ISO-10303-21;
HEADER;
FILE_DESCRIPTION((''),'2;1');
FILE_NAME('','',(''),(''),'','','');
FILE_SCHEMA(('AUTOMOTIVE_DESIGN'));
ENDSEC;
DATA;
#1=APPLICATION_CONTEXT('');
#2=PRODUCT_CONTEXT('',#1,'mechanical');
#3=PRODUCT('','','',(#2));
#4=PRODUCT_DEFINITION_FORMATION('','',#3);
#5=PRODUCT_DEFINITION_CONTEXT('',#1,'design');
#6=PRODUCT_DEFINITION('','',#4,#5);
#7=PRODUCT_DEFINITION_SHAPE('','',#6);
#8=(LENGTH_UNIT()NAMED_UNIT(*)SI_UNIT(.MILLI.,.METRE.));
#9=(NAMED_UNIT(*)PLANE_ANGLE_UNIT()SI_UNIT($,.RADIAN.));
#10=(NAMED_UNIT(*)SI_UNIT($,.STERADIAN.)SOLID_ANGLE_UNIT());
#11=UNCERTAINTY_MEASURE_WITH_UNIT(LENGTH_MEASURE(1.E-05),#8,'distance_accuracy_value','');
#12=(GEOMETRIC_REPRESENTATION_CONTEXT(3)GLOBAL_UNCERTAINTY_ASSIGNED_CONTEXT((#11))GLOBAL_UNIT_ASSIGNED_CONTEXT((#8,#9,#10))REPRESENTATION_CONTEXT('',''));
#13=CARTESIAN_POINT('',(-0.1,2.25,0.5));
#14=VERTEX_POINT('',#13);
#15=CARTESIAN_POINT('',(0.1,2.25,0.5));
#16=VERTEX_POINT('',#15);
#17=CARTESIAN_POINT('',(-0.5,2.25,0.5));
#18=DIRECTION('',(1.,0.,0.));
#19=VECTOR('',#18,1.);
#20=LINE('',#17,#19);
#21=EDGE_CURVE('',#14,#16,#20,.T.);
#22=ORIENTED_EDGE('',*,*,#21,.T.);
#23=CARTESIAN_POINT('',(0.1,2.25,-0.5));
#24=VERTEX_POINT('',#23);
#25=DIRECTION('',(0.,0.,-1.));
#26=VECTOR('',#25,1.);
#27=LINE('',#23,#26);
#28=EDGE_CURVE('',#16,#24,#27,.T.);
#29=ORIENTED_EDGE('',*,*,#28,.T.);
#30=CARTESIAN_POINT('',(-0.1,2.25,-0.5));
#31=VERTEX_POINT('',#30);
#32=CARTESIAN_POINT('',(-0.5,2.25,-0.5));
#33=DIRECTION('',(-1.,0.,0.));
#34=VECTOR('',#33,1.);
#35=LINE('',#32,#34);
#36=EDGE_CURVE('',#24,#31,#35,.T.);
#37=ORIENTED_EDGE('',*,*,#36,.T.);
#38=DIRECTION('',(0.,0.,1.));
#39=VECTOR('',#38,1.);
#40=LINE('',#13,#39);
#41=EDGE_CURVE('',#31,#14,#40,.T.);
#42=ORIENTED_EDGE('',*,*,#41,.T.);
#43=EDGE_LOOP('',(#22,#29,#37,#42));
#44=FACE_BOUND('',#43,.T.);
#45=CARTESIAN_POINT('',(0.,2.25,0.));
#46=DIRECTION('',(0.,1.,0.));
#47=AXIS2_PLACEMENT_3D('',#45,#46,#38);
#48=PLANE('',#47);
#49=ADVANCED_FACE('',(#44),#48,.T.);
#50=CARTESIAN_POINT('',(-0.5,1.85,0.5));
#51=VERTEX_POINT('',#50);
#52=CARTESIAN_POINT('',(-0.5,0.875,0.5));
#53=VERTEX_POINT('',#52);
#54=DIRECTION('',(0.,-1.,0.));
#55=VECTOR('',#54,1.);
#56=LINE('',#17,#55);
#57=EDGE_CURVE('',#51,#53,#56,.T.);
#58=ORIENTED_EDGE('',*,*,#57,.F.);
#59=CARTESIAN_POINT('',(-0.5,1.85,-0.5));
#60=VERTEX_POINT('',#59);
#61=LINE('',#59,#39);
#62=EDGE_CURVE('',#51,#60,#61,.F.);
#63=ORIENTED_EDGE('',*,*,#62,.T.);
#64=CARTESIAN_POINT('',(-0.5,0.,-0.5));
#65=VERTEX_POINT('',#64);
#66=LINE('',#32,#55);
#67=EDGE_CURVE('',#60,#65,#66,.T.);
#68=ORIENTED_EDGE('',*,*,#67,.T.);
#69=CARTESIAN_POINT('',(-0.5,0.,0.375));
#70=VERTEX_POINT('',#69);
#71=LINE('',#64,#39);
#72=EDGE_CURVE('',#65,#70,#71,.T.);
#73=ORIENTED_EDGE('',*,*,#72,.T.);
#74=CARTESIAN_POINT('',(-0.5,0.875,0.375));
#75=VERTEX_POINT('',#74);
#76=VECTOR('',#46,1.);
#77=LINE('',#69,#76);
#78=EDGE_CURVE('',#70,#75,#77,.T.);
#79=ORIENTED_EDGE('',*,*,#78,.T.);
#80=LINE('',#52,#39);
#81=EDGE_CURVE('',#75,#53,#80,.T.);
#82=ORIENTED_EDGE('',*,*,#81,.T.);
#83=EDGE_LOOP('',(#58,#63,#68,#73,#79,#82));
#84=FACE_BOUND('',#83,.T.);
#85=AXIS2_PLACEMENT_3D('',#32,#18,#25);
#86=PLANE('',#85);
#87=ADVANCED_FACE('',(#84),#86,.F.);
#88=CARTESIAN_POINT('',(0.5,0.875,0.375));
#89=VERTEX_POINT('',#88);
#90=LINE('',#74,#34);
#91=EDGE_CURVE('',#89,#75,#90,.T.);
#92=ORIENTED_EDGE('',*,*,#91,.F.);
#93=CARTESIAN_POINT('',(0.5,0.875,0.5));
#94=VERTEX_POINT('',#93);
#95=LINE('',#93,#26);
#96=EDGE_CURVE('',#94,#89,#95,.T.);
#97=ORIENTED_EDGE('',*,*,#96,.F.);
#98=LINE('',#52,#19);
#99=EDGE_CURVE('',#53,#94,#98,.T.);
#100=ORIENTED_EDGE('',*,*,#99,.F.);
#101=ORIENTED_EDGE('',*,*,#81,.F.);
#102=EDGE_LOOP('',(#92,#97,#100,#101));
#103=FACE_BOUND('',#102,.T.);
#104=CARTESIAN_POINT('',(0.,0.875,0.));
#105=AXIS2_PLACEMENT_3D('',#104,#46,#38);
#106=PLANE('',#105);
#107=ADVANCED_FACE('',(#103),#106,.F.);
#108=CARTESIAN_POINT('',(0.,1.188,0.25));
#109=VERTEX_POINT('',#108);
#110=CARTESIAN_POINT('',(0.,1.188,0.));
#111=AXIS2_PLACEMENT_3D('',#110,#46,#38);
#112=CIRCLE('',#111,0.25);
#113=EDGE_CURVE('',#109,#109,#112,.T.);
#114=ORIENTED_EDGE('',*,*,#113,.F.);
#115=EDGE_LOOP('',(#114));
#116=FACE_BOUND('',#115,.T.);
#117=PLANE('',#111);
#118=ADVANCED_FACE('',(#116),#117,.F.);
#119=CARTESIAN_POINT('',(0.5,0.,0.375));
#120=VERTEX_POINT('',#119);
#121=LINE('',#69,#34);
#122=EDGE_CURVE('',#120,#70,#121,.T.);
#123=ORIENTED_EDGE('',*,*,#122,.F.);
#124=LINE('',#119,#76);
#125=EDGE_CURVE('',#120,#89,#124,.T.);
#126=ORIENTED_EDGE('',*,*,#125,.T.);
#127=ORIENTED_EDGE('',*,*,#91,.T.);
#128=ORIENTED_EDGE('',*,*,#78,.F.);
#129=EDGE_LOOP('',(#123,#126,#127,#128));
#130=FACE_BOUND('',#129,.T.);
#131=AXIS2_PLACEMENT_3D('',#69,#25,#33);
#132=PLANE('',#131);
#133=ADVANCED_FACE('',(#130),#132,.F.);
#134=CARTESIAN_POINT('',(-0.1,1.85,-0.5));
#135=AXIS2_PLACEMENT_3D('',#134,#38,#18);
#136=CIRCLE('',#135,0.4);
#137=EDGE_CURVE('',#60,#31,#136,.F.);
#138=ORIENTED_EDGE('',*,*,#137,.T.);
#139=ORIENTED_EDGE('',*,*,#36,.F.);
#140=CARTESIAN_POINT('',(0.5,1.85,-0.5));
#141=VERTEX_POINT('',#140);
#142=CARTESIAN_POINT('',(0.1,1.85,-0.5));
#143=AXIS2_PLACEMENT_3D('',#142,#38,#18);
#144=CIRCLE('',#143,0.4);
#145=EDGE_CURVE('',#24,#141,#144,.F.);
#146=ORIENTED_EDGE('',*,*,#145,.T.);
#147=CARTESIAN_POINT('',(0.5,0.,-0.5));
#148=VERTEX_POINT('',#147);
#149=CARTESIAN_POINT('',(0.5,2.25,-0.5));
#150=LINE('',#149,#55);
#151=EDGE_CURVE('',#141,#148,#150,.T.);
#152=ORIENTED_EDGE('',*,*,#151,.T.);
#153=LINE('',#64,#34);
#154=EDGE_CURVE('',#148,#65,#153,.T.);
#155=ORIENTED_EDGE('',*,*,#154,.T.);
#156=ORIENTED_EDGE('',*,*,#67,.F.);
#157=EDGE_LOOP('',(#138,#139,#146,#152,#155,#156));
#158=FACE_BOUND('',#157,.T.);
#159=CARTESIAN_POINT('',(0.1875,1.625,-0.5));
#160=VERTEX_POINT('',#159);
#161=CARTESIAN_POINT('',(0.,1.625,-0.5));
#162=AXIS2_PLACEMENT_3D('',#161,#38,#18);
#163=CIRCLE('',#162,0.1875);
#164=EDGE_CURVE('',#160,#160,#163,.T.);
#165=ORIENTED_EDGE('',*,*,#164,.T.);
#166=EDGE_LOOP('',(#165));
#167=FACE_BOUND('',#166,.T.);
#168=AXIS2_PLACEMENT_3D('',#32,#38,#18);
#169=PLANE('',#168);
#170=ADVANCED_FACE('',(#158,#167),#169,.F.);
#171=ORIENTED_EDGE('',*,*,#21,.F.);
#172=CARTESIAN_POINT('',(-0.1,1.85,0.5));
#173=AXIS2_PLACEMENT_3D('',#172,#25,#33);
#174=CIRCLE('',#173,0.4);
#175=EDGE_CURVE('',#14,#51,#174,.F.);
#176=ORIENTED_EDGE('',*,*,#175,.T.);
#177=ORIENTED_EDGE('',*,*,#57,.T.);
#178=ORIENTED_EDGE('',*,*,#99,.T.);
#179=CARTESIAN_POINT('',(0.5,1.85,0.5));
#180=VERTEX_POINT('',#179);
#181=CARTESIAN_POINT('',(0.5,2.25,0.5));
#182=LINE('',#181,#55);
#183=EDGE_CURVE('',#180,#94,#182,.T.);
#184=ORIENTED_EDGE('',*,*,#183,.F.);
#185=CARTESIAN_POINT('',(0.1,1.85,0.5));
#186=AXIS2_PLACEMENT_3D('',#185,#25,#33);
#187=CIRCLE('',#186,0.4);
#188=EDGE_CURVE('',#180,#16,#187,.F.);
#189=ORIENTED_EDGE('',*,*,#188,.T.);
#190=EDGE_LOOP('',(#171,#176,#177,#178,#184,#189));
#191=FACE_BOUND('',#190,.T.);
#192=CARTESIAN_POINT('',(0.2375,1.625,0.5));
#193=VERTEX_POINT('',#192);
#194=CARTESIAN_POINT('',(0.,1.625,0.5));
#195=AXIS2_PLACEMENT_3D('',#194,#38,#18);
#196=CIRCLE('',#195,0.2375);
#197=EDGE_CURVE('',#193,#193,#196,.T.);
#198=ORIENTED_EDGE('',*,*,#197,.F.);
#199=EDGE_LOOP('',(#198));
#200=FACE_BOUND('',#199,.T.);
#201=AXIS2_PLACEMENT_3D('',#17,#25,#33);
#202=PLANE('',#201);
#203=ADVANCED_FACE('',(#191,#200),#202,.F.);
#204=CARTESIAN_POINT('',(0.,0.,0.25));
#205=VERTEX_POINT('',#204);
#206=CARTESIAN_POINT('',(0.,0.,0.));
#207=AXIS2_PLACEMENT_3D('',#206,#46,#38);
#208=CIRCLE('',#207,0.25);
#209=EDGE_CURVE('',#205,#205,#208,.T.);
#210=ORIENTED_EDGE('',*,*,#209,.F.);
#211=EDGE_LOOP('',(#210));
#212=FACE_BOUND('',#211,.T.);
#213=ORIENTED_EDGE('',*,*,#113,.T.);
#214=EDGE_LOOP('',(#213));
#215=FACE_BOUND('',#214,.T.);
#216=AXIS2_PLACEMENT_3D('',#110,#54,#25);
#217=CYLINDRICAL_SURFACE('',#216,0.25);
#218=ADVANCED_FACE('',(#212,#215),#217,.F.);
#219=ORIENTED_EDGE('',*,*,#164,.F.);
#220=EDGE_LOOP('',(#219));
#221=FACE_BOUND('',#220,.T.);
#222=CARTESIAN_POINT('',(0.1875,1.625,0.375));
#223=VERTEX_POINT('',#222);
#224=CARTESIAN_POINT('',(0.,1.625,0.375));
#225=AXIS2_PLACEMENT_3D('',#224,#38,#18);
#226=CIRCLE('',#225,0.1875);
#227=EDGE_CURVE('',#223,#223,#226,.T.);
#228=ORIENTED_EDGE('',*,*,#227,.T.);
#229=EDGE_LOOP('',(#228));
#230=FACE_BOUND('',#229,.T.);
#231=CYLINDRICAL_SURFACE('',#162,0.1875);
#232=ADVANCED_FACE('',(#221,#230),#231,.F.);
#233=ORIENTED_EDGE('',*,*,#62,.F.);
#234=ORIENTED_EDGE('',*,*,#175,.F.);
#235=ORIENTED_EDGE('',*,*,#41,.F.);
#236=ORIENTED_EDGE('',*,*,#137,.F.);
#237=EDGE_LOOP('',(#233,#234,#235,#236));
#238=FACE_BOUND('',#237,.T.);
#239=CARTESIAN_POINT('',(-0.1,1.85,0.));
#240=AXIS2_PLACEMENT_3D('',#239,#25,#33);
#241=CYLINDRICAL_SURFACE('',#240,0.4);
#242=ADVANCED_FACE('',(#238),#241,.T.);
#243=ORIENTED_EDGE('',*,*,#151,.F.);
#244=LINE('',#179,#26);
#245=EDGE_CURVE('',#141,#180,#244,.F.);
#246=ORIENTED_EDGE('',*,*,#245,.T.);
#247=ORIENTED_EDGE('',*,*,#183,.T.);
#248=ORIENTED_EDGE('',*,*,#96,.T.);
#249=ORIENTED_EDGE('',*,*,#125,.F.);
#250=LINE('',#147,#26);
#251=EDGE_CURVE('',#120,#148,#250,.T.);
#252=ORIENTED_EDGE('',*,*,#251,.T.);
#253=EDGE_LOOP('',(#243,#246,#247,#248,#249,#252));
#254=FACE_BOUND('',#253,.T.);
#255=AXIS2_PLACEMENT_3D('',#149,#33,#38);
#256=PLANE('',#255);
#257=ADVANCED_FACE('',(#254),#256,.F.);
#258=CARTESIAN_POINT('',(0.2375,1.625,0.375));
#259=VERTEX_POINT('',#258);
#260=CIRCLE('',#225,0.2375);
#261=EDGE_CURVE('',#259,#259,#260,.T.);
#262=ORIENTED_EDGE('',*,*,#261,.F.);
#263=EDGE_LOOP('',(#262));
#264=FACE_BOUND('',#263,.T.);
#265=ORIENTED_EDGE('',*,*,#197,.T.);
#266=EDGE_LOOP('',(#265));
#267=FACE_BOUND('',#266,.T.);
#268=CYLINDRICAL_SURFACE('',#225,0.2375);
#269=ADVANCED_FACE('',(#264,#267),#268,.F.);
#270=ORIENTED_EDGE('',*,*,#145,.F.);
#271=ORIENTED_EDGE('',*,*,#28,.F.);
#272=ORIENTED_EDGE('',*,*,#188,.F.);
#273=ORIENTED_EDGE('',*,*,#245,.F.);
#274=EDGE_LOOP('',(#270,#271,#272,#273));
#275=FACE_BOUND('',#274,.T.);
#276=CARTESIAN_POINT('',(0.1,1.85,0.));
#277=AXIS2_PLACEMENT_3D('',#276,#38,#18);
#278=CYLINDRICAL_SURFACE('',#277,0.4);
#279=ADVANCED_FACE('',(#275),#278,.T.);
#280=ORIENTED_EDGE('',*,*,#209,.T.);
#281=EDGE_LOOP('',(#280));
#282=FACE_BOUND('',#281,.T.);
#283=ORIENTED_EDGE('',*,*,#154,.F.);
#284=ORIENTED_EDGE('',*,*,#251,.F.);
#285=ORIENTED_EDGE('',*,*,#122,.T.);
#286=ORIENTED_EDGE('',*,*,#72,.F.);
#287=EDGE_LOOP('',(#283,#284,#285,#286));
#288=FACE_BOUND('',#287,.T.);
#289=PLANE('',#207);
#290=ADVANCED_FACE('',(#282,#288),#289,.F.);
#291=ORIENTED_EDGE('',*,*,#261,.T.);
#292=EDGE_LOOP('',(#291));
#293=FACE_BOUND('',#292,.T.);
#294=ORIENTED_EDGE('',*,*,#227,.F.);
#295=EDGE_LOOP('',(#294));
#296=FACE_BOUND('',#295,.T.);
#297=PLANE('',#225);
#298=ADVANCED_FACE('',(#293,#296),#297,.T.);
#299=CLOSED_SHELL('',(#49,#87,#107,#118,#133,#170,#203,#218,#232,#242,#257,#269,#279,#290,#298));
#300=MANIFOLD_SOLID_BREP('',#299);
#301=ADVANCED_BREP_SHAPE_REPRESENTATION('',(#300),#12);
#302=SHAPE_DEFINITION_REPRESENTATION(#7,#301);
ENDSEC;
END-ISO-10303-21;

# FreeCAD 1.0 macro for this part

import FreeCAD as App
import Part
import Sketcher
Q = App.Units.Quantity


def edges_at(feature, points):
    """Names of the edges that pass closest to the given points."""
    edges = feature.Shape.Edges
    near = lambda p: min(range(len(edges)), key=lambda i: edges[i].distToShape(Part.Vertex(*p))[0])
    return sorted({f"Edge{near(p) + 1}" for p in points})

doc = App.newDocument("Part")
body = doc.addObject("PartDesign::Body", "Body")

sketch1 = body.newObject("Sketcher::SketchObject", "Sketch")
sketch1.AttachmentSupport = (doc.getObject("XZ_Plane"), [""])
sketch1.MapMode = "FlatFace"
sketch1.addGeometry(Part.LineSegment(App.Vector(-0.5, -0.5, 0), App.Vector(-0.5, 0.5, 0)), False)
sketch1.addGeometry(Part.LineSegment(App.Vector(-0.5, 0.5, 0), App.Vector(0.5, 0.5, 0)), False)
sketch1.addGeometry(Part.LineSegment(App.Vector(0.5, 0.5, 0), App.Vector(0.5, -0.5, 0)), False)
sketch1.addGeometry(Part.LineSegment(App.Vector(0.5, -0.5, 0), App.Vector(-0.5, -0.5, 0)), False)
sketch1.addConstraint(Sketcher.Constraint("Coincident", 0, 2, 1, 1))
sketch1.addConstraint(Sketcher.Constraint("Coincident", 1, 2, 2, 1))
sketch1.addConstraint(Sketcher.Constraint("Coincident", 2, 2, 3, 1))
sketch1.addConstraint(Sketcher.Constraint("Coincident", 3, 2, 0, 1))
sketch1.addConstraint(Sketcher.Constraint("Vertical", 0))
sketch1.addConstraint(Sketcher.Constraint("Horizontal", 1))
sketch1.addConstraint(Sketcher.Constraint("Vertical", 2))
sketch1.addConstraint(Sketcher.Constraint("Horizontal", 3))
sketch1.addConstraint(Sketcher.Constraint("Symmetric", 0, 2, 2, 2, -1, 1))
sketch1.addConstraint(Sketcher.Constraint("Equal", 3, 0))
sketch1.addConstraint(Sketcher.Constraint("DistanceX", 1, 1, 1, 2, Q("1 mm")))
pad1 = body.newObject("PartDesign::Pad", "Pad")
pad1.Profile = sketch1
pad1.Length = 2.25
pad1.Reversed = True

sketch2 = body.newObject("Sketcher::SketchObject", "Sketch001")
sketch2.AttachmentSupport = (doc.getObject("XZ_Plane"), [""])
sketch2.MapMode = "FlatFace"
sketch2.AttachmentOffset = App.Placement(App.Vector(0, 0, -0.875), App.Rotation())
sketch2.addGeometry(Part.LineSegment(App.Vector(-0.5, 0.38, 0), App.Vector(-0.5, 0.5, 0)), False)
sketch2.addGeometry(Part.LineSegment(App.Vector(-0.5, 0.5, 0), App.Vector(0.5, 0.5, 0)), False)
sketch2.addGeometry(Part.LineSegment(App.Vector(0.5, 0.5, 0), App.Vector(0.5, 0.38, 0)), False)
sketch2.addGeometry(Part.LineSegment(App.Vector(0.5, 0.38, 0), App.Vector(-0.5, 0.38, 0)), False)
sketch2.addConstraint(Sketcher.Constraint("Coincident", 0, 2, 1, 1))
sketch2.addConstraint(Sketcher.Constraint("Coincident", 1, 2, 2, 1))
sketch2.addConstraint(Sketcher.Constraint("Coincident", 2, 2, 3, 1))
sketch2.addConstraint(Sketcher.Constraint("Coincident", 3, 2, 0, 1))
sketch2.addConstraint(Sketcher.Constraint("Vertical", 0))
sketch2.addConstraint(Sketcher.Constraint("Horizontal", 1))
sketch2.addConstraint(Sketcher.Constraint("Vertical", 2))
sketch2.addConstraint(Sketcher.Constraint("Horizontal", 3))
sketch2.addConstraint(Sketcher.Constraint("DistanceX", 1, 1, 1, 2, Q("1 mm")))
sketch2.addConstraint(Sketcher.Constraint("DistanceX", 0, 2, -1, 1, Q("0.5 mm")))
sketch2.addConstraint(Sketcher.Constraint("DistanceY", -1, 1, 0, 2, Q("0.5 mm")))
sketch2.addConstraint(Sketcher.Constraint("DistanceY", 0, 1, 0, 2, Q("0.125 mm")))
pocket1 = body.newObject("PartDesign::Pocket", "Pocket")
pocket1.Profile = sketch2
pocket1.Length = 0.875
pocket1.Reversed = True

sketch3 = body.newObject("Sketcher::SketchObject", "Sketch002")
sketch3.AttachmentSupport = (doc.getObject("XY_Plane"), [""])
sketch3.MapMode = "FlatFace"
sketch3.AttachmentOffset = App.Placement(App.Vector(0, 0, 0.5), App.Rotation())
sketch3.addGeometry(Part.Circle(App.Vector(0, 1.62, 0), App.Vector(0, 0, 1), 0.24), False)
sketch3.addConstraint(Sketcher.Constraint("PointOnObject", 0, 3, -2))
sketch3.addConstraint(Sketcher.Constraint("Diameter", 0, Q("0.475 mm")))
sketch3.addConstraint(Sketcher.Constraint("DistanceY", -1, 1, 0, 3, Q("1.625 mm")))
pocket2 = body.newObject("PartDesign::Pocket", "Pocket001")
pocket2.Profile = sketch3
pocket2.Length = 0.125

sketch4 = body.newObject("Sketcher::SketchObject", "Sketch003")
sketch4.AttachmentSupport = (doc.getObject("XY_Plane"), [""])
sketch4.MapMode = "FlatFace"
sketch4.AttachmentOffset = App.Placement(App.Vector(0, 0, 0.375), App.Rotation())
sketch4.addGeometry(Part.Circle(App.Vector(0, 1.62, 0), App.Vector(0, 0, 1), 0.19), False)
sketch4.addConstraint(Sketcher.Constraint("PointOnObject", 0, 3, -2))
sketch4.addConstraint(Sketcher.Constraint("Diameter", 0, Q("0.375 mm")))
sketch4.addConstraint(Sketcher.Constraint("DistanceY", -1, 1, 0, 3, Q("1.625 mm")))
pocket3 = body.newObject("PartDesign::Pocket", "Pocket002")
pocket3.Profile = sketch4
pocket3.Length = 0.875

sketch5 = body.newObject("Sketcher::SketchObject", "Sketch004")
sketch5.AttachmentSupport = (doc.getObject("XZ_Plane"), [""])
sketch5.MapMode = "FlatFace"
sketch5.addGeometry(Part.Circle(App.Vector(0, 0, 0), App.Vector(0, 0, 1), 0.25), False)
sketch5.addConstraint(Sketcher.Constraint("Coincident", 0, 3, -1, 1))
sketch5.addConstraint(Sketcher.Constraint("Diameter", 0, Q("0.5 mm")))
pocket4 = body.newObject("PartDesign::Pocket", "Pocket003")
pocket4.Profile = sketch5
pocket4.Length = 1.188
doc.recompute()

fillet = body.newObject("PartDesign::Fillet", "Fillet")
fillet.Base = (pocket4, edges_at(pocket4, [(0.5, 2.25, 0)]))
fillet.Radius = 0.4
doc.recompute()

fillet2 = body.newObject("PartDesign::Fillet", "Fillet001")
fillet2.Base = (fillet, edges_at(fillet, [(-0.5, 2.25, 0)]))
fillet2.Radius = 0.4

doc.recompute()
